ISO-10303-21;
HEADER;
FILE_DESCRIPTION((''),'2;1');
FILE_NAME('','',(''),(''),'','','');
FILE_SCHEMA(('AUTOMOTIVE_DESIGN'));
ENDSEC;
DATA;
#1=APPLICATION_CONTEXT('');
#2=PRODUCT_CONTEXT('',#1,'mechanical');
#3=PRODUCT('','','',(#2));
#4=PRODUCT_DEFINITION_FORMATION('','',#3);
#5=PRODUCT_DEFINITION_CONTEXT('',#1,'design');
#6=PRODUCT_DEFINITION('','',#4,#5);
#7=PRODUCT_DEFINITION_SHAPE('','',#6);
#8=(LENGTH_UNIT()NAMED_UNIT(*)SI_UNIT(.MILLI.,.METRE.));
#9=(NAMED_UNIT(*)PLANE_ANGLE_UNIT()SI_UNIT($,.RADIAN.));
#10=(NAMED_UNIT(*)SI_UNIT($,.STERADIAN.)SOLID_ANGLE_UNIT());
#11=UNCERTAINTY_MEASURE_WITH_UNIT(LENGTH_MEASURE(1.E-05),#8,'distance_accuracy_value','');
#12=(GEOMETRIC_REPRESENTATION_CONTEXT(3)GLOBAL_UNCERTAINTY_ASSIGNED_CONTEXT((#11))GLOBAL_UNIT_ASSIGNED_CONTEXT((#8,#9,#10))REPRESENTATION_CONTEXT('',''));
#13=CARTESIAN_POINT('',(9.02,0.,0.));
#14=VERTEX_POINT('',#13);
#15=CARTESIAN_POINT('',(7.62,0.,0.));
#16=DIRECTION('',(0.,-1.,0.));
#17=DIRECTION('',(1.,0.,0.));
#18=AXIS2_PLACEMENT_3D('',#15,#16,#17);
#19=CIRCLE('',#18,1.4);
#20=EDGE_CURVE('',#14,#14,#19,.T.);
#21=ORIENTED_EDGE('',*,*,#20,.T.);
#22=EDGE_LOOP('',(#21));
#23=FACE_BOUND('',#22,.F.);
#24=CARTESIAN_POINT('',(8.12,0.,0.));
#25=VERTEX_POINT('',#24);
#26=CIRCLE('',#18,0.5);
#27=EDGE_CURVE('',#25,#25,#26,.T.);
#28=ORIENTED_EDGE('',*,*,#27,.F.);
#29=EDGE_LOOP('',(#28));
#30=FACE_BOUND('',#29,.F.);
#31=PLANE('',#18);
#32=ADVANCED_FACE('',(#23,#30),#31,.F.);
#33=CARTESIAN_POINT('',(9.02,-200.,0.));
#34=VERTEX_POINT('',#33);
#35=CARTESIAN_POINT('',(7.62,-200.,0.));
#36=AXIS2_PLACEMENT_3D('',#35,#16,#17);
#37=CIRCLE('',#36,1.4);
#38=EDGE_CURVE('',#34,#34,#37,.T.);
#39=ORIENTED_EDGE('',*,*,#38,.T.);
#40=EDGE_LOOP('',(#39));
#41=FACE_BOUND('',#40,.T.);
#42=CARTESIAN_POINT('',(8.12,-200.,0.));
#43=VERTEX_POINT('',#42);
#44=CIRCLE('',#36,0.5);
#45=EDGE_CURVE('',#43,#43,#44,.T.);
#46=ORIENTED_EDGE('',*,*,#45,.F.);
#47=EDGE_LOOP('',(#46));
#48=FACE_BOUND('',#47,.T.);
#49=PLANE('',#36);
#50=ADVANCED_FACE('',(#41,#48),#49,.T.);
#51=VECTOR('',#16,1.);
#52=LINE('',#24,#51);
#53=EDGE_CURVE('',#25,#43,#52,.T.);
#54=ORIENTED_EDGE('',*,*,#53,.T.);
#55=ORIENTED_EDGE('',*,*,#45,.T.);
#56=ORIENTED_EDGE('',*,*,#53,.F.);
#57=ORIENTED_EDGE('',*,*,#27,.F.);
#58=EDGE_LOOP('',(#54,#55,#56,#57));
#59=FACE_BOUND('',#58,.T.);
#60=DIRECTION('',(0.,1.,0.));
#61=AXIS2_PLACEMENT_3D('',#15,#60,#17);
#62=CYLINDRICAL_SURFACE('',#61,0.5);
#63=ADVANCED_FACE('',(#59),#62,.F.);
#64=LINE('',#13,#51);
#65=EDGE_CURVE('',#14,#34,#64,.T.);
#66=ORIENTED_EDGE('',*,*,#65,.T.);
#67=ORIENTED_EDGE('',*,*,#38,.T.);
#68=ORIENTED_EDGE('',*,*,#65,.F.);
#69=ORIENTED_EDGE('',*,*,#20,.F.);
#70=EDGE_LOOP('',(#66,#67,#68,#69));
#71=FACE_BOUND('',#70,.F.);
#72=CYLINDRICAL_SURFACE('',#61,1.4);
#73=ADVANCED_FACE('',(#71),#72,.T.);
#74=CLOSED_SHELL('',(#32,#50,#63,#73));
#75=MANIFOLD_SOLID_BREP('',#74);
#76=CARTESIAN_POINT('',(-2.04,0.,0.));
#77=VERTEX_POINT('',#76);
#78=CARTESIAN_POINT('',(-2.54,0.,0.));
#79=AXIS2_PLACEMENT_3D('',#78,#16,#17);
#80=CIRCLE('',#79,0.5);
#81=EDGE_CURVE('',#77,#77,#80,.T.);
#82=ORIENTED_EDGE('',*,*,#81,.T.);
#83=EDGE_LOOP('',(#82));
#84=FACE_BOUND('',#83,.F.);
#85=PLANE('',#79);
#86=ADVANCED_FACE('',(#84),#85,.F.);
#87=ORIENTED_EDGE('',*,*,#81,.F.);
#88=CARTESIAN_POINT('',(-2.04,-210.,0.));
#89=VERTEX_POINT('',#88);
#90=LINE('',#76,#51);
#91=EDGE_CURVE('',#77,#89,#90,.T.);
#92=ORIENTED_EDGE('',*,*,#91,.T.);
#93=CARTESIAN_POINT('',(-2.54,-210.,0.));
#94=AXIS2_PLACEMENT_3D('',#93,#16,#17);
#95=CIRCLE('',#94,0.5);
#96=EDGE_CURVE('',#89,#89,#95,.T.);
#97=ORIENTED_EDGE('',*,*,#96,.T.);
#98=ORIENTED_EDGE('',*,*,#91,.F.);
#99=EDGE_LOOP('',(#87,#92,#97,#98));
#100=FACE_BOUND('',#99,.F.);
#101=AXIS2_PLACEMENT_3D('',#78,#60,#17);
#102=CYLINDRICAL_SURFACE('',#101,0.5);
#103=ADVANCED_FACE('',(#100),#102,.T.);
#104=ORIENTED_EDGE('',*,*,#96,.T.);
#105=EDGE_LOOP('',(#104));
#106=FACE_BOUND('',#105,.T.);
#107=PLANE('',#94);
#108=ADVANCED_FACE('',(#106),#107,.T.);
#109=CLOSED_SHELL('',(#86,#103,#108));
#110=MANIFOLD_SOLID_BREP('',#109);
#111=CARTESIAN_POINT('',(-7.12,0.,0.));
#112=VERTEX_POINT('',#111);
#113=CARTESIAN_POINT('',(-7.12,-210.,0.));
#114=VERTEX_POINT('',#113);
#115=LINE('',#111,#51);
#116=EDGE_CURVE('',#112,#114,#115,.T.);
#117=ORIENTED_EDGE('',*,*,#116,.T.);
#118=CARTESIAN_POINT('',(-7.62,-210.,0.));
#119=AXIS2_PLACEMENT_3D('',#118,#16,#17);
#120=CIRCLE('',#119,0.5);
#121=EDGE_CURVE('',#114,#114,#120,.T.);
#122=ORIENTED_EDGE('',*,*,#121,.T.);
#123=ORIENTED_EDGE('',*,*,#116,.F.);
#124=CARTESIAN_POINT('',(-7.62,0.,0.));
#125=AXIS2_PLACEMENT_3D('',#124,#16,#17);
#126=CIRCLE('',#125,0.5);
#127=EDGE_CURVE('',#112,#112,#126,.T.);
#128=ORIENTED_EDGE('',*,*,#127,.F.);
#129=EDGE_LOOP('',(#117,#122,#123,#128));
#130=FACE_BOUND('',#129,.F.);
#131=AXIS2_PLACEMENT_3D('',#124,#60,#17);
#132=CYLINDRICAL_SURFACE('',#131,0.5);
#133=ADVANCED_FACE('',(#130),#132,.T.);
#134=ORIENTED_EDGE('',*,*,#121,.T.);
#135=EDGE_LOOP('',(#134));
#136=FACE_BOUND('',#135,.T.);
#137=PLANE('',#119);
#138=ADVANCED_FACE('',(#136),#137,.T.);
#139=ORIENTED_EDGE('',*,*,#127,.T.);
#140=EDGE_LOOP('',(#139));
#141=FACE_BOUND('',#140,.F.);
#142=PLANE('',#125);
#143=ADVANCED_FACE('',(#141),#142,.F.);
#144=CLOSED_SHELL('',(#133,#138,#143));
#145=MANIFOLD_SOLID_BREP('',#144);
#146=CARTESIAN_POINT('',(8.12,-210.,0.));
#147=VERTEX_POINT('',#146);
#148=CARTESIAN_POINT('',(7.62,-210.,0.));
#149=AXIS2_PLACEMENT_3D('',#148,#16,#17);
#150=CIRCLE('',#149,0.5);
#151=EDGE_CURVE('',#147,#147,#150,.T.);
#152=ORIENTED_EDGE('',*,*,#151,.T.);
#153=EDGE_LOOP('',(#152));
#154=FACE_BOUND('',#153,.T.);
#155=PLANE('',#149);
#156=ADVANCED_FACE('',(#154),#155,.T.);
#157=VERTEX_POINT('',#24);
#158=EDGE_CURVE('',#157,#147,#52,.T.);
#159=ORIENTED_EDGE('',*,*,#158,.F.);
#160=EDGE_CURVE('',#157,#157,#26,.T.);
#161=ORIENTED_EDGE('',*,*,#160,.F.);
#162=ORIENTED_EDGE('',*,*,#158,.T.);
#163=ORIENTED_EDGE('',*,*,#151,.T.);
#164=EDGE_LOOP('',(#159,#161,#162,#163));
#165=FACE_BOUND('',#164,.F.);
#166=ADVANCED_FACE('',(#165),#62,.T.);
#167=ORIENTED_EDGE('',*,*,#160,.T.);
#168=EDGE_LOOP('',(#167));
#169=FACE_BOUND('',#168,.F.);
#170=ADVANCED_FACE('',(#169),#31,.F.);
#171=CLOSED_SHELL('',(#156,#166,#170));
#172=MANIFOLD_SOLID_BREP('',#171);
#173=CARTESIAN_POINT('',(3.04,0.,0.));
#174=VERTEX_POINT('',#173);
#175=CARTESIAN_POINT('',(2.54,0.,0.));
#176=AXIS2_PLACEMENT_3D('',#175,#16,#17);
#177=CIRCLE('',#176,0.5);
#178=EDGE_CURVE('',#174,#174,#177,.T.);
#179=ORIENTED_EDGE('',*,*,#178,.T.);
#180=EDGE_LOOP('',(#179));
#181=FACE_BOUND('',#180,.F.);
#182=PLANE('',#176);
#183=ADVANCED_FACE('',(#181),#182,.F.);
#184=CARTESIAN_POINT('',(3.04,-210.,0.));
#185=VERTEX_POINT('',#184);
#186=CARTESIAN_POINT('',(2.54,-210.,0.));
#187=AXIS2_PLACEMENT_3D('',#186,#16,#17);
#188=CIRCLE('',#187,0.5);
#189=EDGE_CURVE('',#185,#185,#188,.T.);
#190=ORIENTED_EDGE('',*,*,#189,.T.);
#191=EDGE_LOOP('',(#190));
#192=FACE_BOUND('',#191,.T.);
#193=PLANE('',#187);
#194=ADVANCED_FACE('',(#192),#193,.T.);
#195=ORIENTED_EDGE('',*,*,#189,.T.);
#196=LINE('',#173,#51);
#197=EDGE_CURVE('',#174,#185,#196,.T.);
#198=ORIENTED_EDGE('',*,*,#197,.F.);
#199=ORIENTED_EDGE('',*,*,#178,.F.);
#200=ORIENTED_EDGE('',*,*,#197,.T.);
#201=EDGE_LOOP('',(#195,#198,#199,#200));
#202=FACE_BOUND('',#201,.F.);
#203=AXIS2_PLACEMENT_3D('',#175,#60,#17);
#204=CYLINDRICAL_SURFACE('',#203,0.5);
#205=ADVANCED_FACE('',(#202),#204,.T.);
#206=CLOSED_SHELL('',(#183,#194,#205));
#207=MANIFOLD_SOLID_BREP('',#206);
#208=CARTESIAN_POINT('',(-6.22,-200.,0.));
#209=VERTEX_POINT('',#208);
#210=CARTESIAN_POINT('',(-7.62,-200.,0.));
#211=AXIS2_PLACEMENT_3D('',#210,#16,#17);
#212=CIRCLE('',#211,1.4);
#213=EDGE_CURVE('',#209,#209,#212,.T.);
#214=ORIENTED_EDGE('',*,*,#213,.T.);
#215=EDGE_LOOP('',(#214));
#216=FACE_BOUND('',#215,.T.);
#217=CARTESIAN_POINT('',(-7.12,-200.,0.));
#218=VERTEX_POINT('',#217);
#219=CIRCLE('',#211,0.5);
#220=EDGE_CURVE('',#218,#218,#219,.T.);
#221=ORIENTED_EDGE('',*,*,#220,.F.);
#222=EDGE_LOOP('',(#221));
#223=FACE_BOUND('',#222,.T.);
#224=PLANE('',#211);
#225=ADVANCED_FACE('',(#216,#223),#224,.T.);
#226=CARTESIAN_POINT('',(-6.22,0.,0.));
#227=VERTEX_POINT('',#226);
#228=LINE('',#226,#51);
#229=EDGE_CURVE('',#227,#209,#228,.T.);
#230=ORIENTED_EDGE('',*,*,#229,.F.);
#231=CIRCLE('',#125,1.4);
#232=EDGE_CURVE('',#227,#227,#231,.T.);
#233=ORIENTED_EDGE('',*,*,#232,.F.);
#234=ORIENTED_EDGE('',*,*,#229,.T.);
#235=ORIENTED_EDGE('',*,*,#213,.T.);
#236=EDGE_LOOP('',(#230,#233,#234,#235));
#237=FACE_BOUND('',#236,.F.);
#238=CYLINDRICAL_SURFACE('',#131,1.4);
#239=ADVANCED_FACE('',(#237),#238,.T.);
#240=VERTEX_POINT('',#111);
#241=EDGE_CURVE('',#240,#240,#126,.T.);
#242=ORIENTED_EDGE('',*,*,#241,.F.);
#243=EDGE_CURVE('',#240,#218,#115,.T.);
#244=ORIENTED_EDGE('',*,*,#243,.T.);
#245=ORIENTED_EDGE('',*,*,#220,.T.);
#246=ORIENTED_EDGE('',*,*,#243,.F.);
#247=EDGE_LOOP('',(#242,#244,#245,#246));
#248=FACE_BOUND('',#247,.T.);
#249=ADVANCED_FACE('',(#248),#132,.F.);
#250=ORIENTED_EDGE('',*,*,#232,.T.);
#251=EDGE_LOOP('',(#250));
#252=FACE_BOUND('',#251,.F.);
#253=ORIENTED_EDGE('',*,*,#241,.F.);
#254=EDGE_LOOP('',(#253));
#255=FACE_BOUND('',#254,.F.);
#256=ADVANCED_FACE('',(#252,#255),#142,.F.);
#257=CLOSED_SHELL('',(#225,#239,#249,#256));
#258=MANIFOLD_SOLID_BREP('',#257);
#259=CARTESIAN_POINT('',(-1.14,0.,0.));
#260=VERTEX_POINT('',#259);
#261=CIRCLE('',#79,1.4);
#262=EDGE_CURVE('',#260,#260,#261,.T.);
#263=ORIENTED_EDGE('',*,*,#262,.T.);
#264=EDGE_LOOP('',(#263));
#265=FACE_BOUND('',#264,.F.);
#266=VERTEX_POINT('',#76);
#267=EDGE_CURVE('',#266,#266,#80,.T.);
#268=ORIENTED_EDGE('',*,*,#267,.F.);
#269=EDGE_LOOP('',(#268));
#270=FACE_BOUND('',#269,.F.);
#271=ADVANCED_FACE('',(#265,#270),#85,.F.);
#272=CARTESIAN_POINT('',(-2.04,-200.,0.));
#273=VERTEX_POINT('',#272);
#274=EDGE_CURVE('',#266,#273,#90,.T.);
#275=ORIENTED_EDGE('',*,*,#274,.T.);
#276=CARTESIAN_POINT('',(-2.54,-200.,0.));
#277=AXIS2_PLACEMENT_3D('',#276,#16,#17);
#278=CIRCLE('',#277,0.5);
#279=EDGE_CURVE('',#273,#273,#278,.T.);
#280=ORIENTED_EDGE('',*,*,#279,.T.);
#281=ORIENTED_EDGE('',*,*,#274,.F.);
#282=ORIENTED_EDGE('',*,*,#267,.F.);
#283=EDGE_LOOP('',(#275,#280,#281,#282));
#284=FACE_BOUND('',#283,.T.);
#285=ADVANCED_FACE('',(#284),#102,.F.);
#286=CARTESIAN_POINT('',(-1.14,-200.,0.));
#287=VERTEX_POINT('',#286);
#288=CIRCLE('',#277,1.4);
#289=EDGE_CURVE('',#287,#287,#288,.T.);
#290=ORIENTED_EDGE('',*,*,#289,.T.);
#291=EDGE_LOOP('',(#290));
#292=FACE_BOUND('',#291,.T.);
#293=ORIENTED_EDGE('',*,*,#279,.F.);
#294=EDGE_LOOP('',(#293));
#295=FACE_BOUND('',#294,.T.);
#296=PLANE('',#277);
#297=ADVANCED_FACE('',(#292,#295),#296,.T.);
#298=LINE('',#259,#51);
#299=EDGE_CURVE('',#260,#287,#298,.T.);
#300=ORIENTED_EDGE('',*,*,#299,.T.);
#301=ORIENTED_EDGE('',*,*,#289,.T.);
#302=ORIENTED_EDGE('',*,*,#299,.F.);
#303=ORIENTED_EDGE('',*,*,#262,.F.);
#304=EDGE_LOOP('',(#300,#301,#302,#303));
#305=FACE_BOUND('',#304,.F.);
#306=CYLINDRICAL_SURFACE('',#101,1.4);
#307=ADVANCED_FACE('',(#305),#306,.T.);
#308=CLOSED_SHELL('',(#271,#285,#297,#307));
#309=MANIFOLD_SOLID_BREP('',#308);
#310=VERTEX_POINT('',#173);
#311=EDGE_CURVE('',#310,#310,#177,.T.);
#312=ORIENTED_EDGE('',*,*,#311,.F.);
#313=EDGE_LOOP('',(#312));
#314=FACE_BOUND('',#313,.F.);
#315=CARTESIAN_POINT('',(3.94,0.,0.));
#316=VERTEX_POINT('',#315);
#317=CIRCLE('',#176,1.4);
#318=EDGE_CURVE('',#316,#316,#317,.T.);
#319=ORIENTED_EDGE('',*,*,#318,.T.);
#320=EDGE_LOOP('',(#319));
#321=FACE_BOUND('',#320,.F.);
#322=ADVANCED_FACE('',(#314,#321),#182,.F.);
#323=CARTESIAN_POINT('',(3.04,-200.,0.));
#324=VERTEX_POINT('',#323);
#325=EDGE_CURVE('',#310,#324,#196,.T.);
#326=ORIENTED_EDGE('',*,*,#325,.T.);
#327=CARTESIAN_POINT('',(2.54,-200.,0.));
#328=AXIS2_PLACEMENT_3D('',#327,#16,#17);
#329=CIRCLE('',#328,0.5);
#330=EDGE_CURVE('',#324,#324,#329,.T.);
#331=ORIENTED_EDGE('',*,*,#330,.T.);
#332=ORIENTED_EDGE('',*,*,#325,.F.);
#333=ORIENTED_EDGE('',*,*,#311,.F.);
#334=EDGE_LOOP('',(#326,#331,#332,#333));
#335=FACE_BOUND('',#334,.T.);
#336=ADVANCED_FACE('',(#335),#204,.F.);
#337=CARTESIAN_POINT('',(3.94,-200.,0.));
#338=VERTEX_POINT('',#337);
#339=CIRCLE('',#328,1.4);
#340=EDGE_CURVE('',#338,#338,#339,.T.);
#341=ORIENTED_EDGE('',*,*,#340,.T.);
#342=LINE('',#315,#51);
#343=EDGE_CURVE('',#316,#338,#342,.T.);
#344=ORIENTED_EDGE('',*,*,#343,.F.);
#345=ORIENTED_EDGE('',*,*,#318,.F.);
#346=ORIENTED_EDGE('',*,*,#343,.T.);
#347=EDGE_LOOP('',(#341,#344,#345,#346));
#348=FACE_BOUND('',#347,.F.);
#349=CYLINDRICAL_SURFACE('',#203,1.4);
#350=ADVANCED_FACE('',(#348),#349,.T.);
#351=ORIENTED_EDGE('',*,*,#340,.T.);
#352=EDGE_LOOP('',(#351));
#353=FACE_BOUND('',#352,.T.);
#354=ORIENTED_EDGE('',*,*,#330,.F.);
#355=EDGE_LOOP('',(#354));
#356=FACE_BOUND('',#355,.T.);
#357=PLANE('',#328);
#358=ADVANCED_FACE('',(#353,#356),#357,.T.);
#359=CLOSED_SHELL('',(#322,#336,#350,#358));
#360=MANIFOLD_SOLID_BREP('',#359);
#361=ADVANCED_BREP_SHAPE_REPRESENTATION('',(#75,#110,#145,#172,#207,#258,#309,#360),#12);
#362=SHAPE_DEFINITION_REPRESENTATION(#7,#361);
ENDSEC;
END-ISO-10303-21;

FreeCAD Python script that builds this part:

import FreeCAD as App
import Part
import Sketcher

doc = App.newDocument("Part")
body = doc.addObject("PartDesign::Body", "Body")
body.AllowCompound = True

# Sketch on XZ plane
sketch1 = body.newObject("Sketcher::SketchObject", "Sketch")
sketch1.AttachmentSupport = (doc.getObject("XZ_Plane"), [""])
sketch1.MapMode = "FlatFace"
sketch1.addGeometry(Part.Circle(App.Vector(-7.6, 0, 0), App.Vector(0, 0, 1), 1.4), False)
sketch1.addGeometry(Part.Circle(App.Vector(-7.6, 0, 0), App.Vector(0, 0, 1), 0.5), False)
sketch1.addGeometry(Part.Circle(App.Vector(-2.5, 0, 0), App.Vector(0, 0, 1), 1.4), False)
sketch1.addGeometry(Part.Circle(App.Vector(-2.5, 0, 0), App.Vector(0, 0, 1), 0.5), False)
sketch1.addGeometry(Part.Circle(App.Vector(2.5, 0, 0), App.Vector(0, 0, 1), 1.4), False)
sketch1.addGeometry(Part.Circle(App.Vector(2.5, 0, 0), App.Vector(0, 0, 1), 0.5), False)
sketch1.addGeometry(Part.Circle(App.Vector(7.6, 0, 0), App.Vector(0, 0, 1), 1.4), False)
sketch1.addGeometry(Part.Circle(App.Vector(7.6, 0, 0), App.Vector(0, 0, 1), 0.5), False)
sketch1.addConstraint(Sketcher.Constraint("Coincident", 1, 3, 0, 3))
sketch1.addConstraint(Sketcher.Constraint("Coincident", 3, 3, 2, 3))
sketch1.addConstraint(Sketcher.Constraint("Coincident", 5, 3, 4, 3))
sketch1.addConstraint(Sketcher.Constraint("Coincident", 7, 3, 6, 3))
sketch1.addConstraint(Sketcher.Constraint("Equal", 0, 2))
sketch1.addConstraint(Sketcher.Constraint("Equal", 1, 3))
sketch1.addConstraint(Sketcher.Constraint("Equal", 2, 4))
sketch1.addConstraint(Sketcher.Constraint("Equal", 3, 5))
sketch1.addConstraint(Sketcher.Constraint("Equal", 4, 6))
sketch1.addConstraint(Sketcher.Constraint("Equal", 5, 7))
sketch1.addConstraint(Sketcher.Constraint("Symmetric", 2, 3, 4, 3, -1, 1))
sketch1.addConstraint(Sketcher.Constraint("Symmetric", 0, 3, 6, 3, -1, 1))
sketch1.addConstraint(Sketcher.Constraint("PointOnObject", 0, 3, -1))
sketch1.addConstraint(Sketcher.Constraint("PointOnObject", 2, 3, -1))
sketch1.addConstraint(Sketcher.Constraint("Diameter", 1, 1.0))
sketch1.addConstraint(Sketcher.Constraint("Diameter", 0, 2.8))
sketch1.addConstraint(Sketcher.Constraint("DistanceX", 0, 3, -1, 1, 7.62))
sketch1.addConstraint(Sketcher.Constraint("DistanceX", 2, 3, -1, 1, 2.54))
pad1 = body.newObject("PartDesign::Pad", "Pad")
pad1.Profile = sketch1
pad1.Length = 200
body2 = doc.addObject("PartDesign::Body", "Body001")
body2.AllowCompound = True

# Sketch on XZ plane
sketch2 = body2.newObject("Sketcher::SketchObject", "Sketch001")
sketch2.AttachmentSupport = (doc.getObject("XZ_Plane001"), [""])
sketch2.MapMode = "FlatFace"
sketch2.addGeometry(Part.Circle(App.Vector(7.6, 0, 0), App.Vector(0, 0, 1), 0.5), False)
sketch2.addGeometry(Part.Circle(App.Vector(2.5, 0, 0), App.Vector(0, 0, 1), 0.5), False)
sketch2.addGeometry(Part.Circle(App.Vector(-2.5, 0, 0), App.Vector(0, 0, 1), 0.5), False)
sketch2.addGeometry(Part.Circle(App.Vector(-7.6, 0, 0), App.Vector(0, 0, 1), 0.5), False)
sketch2.addConstraint(Sketcher.Constraint("Equal", 0, 1))
sketch2.addConstraint(Sketcher.Constraint("Equal", 1, 2))
sketch2.addConstraint(Sketcher.Constraint("Equal", 2, 3))
sketch2.addConstraint(Sketcher.Constraint("Symmetric", 1, 3, 2, 3, -1, 1))
sketch2.addConstraint(Sketcher.Constraint("Symmetric", 0, 3, 3, 3, -1, 1))
sketch2.addConstraint(Sketcher.Constraint("PointOnObject", 0, 3, -1))
sketch2.addConstraint(Sketcher.Constraint("PointOnObject", 1, 3, -1))
sketch2.addConstraint(Sketcher.Constraint("Diameter", 0, 1.0))
sketch2.addConstraint(Sketcher.Constraint("DistanceX", -1, 1, 0, 3, 7.62))
sketch2.addConstraint(Sketcher.Constraint("DistanceX", -1, 1, 1, 3, 2.54))
pad2 = body2.newObject("PartDesign::Pad", "Pad001")
pad2.Profile = sketch2
pad2.Length = 210

doc.recompute()
